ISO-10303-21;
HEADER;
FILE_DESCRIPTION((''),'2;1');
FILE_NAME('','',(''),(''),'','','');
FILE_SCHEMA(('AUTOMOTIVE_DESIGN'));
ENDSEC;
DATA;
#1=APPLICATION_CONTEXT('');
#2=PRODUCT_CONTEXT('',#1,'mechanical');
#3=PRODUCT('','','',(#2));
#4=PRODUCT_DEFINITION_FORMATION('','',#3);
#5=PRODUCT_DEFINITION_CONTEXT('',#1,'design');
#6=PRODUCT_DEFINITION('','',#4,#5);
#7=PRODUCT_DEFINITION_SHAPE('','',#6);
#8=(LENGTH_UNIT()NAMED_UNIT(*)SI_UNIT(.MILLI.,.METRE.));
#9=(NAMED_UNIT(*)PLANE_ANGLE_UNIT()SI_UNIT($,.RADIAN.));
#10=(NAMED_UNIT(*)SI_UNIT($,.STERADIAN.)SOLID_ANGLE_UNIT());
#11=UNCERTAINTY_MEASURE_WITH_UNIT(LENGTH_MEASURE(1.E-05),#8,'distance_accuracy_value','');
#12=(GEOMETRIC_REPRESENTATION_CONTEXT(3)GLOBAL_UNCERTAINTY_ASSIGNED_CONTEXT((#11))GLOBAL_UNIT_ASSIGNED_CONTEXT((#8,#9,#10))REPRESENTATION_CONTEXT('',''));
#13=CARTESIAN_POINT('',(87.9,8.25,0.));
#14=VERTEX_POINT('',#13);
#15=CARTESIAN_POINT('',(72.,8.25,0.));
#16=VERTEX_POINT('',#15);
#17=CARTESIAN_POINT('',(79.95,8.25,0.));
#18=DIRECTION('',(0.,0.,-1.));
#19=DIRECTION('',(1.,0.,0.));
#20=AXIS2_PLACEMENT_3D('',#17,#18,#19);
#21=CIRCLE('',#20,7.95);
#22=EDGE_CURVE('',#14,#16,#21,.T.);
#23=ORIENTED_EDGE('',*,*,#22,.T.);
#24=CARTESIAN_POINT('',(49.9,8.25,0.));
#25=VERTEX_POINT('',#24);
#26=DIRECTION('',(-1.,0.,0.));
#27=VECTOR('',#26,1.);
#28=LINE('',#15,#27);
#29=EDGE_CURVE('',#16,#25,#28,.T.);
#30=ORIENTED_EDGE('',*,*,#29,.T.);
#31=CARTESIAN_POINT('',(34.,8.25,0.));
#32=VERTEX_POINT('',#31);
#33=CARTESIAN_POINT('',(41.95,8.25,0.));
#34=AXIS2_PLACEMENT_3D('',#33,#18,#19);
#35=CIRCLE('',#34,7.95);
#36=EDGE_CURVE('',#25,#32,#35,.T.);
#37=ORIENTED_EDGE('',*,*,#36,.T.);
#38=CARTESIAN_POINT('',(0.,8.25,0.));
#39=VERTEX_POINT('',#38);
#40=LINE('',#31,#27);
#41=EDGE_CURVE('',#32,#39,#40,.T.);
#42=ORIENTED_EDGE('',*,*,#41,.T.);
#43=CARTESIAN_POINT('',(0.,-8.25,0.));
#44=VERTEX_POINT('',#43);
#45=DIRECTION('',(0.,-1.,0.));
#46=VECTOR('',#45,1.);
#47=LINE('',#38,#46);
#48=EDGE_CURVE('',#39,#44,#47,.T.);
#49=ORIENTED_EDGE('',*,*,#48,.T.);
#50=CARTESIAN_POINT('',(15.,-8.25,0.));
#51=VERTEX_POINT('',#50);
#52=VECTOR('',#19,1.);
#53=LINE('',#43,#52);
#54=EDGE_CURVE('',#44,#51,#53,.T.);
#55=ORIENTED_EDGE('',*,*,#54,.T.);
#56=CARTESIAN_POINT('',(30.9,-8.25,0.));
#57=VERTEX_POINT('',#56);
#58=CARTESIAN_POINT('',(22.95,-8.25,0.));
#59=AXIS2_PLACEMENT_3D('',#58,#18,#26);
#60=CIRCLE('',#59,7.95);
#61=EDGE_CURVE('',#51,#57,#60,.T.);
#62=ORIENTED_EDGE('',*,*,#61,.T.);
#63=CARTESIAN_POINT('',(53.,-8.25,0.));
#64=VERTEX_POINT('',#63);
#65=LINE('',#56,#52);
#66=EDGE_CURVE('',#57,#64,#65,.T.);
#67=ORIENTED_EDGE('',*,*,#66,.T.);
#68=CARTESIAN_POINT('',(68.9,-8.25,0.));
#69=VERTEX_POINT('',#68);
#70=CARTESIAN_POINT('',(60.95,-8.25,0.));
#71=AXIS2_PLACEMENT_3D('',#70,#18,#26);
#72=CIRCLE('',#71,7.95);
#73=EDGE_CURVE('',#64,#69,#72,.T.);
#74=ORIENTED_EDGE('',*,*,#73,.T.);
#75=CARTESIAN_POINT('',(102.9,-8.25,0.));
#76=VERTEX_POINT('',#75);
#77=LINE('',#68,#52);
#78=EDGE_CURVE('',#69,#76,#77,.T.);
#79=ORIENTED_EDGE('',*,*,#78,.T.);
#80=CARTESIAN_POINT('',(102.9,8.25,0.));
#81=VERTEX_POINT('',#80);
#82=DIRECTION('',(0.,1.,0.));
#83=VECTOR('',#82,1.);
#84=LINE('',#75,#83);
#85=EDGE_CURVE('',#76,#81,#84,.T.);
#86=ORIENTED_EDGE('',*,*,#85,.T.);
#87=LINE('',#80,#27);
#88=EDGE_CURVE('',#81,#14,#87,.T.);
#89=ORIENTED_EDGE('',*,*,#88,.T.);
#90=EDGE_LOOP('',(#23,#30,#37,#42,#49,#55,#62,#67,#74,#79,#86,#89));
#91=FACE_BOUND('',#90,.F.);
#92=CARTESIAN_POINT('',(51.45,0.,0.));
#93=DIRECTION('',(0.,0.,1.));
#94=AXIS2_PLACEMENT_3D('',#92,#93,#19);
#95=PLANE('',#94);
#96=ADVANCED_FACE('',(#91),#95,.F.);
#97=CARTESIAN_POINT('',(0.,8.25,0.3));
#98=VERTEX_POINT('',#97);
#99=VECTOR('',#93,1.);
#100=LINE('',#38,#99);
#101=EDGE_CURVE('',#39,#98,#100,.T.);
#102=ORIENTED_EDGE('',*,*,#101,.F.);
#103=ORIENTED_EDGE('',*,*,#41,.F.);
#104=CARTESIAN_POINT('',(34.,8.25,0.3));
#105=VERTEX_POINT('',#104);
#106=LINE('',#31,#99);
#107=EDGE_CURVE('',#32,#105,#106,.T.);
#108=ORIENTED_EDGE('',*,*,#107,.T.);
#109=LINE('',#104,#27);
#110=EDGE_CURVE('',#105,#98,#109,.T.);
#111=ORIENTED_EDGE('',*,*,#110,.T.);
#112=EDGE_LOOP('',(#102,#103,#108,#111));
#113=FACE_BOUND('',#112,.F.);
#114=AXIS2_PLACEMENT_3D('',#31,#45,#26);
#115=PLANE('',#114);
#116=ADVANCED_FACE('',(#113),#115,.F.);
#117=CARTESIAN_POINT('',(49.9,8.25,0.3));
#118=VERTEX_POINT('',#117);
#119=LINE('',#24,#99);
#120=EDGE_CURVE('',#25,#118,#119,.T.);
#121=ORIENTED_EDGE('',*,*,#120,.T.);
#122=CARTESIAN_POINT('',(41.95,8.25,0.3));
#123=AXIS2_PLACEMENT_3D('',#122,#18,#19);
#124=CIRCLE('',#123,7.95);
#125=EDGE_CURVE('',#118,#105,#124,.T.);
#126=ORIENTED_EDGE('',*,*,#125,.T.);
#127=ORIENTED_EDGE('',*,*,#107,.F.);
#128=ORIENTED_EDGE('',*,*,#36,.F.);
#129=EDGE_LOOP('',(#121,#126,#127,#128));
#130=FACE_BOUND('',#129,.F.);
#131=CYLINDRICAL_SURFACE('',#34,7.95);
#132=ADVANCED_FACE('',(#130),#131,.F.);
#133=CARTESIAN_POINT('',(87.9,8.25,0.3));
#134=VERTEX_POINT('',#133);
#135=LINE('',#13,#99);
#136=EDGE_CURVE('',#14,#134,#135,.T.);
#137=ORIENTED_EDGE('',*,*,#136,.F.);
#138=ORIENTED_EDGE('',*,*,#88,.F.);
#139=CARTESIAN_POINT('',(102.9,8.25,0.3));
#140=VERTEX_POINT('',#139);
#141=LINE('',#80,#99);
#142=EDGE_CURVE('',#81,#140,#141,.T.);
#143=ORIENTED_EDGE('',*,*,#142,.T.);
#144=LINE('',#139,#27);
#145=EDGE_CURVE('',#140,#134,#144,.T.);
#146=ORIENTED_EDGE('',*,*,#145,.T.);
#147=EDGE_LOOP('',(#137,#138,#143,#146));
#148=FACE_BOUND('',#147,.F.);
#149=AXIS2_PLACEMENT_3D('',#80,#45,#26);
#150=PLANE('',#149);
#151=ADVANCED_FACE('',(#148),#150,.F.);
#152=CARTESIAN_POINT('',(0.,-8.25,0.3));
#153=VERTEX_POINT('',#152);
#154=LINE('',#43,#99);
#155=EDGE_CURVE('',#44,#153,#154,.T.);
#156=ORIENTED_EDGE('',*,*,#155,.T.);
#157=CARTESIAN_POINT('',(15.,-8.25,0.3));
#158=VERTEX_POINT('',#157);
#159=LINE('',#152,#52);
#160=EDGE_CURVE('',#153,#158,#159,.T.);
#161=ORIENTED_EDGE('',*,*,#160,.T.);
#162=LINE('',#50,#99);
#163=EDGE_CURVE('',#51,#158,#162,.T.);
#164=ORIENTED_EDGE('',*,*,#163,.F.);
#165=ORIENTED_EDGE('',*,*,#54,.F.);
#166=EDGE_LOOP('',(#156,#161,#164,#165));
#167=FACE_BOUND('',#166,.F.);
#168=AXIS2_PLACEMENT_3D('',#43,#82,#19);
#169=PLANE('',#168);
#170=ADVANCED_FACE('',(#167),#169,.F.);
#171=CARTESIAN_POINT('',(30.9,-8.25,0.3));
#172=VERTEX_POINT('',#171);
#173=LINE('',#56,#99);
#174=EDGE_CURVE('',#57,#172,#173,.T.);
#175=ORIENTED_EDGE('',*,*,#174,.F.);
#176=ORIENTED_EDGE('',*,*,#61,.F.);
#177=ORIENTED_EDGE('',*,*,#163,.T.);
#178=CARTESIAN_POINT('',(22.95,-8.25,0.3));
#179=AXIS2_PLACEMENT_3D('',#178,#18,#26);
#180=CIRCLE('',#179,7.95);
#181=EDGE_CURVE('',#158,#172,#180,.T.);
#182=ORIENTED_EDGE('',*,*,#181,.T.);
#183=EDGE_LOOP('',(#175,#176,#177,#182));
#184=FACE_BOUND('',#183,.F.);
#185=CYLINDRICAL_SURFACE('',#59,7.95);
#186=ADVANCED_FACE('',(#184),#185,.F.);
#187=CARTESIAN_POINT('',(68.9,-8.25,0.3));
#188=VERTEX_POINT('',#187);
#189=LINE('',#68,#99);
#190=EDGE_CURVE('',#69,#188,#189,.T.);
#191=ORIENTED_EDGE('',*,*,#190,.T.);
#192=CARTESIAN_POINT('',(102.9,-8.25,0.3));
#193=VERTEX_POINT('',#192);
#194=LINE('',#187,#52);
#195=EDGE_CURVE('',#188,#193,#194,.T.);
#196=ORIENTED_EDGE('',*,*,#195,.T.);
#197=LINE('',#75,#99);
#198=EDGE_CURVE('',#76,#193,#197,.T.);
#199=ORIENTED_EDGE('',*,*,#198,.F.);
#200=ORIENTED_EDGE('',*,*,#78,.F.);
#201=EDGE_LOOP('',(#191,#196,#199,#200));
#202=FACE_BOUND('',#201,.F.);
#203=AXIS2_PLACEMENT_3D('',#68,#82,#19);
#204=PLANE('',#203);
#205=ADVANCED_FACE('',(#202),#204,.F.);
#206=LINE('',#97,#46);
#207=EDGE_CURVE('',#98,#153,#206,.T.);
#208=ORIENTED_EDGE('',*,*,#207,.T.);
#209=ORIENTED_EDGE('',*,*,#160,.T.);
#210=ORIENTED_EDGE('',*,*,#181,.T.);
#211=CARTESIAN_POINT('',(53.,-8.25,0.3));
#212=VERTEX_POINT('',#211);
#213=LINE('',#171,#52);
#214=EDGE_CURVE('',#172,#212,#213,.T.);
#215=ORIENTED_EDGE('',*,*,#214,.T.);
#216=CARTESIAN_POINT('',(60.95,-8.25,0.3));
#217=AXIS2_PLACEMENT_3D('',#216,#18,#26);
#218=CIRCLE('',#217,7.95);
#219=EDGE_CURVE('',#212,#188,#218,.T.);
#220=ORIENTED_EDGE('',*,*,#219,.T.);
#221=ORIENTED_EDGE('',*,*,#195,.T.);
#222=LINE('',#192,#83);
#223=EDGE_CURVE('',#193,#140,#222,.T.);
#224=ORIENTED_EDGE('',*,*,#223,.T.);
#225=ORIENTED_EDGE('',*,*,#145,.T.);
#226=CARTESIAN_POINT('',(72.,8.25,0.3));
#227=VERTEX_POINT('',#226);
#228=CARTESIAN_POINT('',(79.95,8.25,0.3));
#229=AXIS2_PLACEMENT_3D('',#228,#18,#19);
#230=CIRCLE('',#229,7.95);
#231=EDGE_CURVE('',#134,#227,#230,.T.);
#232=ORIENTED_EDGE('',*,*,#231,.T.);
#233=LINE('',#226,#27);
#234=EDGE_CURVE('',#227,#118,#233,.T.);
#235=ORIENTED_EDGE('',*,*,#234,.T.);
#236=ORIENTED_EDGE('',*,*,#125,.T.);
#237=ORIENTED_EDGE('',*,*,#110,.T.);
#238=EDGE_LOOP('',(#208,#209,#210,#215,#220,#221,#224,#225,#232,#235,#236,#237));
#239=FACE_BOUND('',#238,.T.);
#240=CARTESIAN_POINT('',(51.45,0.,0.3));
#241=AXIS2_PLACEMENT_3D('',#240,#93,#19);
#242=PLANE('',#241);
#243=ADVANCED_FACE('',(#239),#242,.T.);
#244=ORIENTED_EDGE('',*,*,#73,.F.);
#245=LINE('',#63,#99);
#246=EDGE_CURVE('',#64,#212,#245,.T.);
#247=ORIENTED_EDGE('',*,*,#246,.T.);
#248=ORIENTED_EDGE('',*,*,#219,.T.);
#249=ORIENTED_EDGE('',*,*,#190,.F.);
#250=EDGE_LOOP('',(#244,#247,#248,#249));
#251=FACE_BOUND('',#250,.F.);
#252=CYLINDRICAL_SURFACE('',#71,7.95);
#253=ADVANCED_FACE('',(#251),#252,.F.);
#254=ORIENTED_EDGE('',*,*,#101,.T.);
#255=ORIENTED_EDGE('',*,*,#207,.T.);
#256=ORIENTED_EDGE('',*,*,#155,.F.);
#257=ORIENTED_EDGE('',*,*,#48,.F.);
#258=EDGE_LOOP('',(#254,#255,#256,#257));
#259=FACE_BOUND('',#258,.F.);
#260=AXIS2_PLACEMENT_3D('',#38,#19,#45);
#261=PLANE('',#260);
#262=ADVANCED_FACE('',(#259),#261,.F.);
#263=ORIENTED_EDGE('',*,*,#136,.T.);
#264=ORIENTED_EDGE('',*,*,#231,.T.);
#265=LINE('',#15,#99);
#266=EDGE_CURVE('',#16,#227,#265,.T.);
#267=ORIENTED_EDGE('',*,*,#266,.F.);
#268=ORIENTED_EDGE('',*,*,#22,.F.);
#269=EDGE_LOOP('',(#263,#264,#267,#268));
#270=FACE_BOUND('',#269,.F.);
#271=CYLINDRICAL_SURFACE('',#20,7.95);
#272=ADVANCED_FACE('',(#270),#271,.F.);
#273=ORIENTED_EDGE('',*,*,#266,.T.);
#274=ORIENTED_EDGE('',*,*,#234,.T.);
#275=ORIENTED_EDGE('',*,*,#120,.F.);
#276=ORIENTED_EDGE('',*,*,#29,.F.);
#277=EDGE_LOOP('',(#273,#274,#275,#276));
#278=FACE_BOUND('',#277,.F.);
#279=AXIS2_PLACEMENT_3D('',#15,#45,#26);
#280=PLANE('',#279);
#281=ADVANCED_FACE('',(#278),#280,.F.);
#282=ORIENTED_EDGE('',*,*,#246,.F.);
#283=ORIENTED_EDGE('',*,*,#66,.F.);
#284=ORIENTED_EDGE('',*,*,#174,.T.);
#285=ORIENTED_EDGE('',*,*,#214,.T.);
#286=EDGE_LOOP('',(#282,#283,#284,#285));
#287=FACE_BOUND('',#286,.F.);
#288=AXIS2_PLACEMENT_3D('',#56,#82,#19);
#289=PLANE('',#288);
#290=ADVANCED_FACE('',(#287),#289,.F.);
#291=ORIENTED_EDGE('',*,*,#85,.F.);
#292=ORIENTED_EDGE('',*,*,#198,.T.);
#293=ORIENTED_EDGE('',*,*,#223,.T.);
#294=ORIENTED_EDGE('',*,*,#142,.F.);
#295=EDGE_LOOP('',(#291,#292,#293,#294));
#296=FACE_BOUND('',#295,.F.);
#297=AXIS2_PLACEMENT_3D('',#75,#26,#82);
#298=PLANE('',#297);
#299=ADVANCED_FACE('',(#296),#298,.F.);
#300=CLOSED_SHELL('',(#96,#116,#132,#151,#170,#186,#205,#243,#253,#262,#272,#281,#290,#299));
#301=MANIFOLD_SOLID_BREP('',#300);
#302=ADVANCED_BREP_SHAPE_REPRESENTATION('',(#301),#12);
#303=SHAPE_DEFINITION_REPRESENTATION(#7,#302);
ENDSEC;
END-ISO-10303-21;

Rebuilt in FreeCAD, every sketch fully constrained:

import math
import FreeCAD as App
import Part
import Sketcher

doc = App.newDocument("Part")
body = doc.addObject("PartDesign::Body", "Body")

# Sketch on XY plane
sketch1 = doc.addObject("Sketcher::SketchObject", "Sketch")
body.addObject(sketch1)
sketch1.AttachmentSupport = (doc.XY_Plane, [""])
sketch1.MapMode = "FlatFace"
sketch1.addGeometry(Part.ArcOfCircle(Part.Circle(App.Vector(61, -8, 0), App.Vector(0, 0, 1), 8), math.radians(0), math.radians(180)), False)
sketch1.addGeometry(Part.LineSegment(App.Vector(69, -8, 0), App.Vector(103, -8, 0)), False)
sketch1.addGeometry(Part.LineSegment(App.Vector(103, -8, 0), App.Vector(103, 8, 0)), False)
sketch1.addGeometry(Part.LineSegment(App.Vector(103, 8, 0), App.Vector(88, 8, 0)), False)
sketch1.addGeometry(Part.ArcOfCircle(Part.Circle(App.Vector(80, 8, 0), App.Vector(0, 0, 1), 8), math.radians(180), math.radians(360)), False)
sketch1.addGeometry(Part.LineSegment(App.Vector(72, 8, 0), App.Vector(50, 8, 0)), False)
sketch1.addGeometry(Part.ArcOfCircle(Part.Circle(App.Vector(42, 8, 0), App.Vector(0, 0, 1), 8), math.radians(180), math.radians(360)), False)
sketch1.addGeometry(Part.LineSegment(App.Vector(34, 8, 0), App.Vector(0, 8, 0)), False)
sketch1.addGeometry(Part.LineSegment(App.Vector(0, 8, 0), App.Vector(0, -8, 0)), False)
sketch1.addGeometry(Part.LineSegment(App.Vector(0, -8, 0), App.Vector(15, -8, 0)), False)
sketch1.addGeometry(Part.ArcOfCircle(Part.Circle(App.Vector(23, -8, 0), App.Vector(0, 0, 1), 8), math.radians(0), math.radians(180)), False)
sketch1.addGeometry(Part.LineSegment(App.Vector(31, -8, 0), App.Vector(53, -8, 0)), False)
sketch1.addConstraint(Sketcher.Constraint("Coincident", 0, 1, 1, 1))
sketch1.addConstraint(Sketcher.Constraint("Coincident", 1, 2, 2, 1))
sketch1.addConstraint(Sketcher.Constraint("Coincident", 2, 2, 3, 1))
sketch1.addConstraint(Sketcher.Constraint("Coincident", 3, 2, 4, 2))
sketch1.addConstraint(Sketcher.Constraint("Coincident", 4, 1, 5, 1))
sketch1.addConstraint(Sketcher.Constraint("Coincident", 5, 2, 6, 2))
sketch1.addConstraint(Sketcher.Constraint("Coincident", 6, 1, 7, 1))
sketch1.addConstraint(Sketcher.Constraint("Coincident", 7, 2, 8, 1))
sketch1.addConstraint(Sketcher.Constraint("Coincident", 8, 2, 9, 1))
sketch1.addConstraint(Sketcher.Constraint("Coincident", 9, 2, 10, 2))
sketch1.addConstraint(Sketcher.Constraint("Coincident", 10, 1, 11, 1))
sketch1.addConstraint(Sketcher.Constraint("Coincident", 11, 2, 0, 2))
sketch1.addConstraint(Sketcher.Constraint("Horizontal", 1))
sketch1.addConstraint(Sketcher.Constraint("Vertical", 2))
sketch1.addConstraint(Sketcher.Constraint("Horizontal", 3))
sketch1.addConstraint(Sketcher.Constraint("Horizontal", 5))
sketch1.addConstraint(Sketcher.Constraint("Horizontal", 7))
sketch1.addConstraint(Sketcher.Constraint("Vertical", 8))
sketch1.addConstraint(Sketcher.Constraint("Horizontal", 9))
sketch1.addConstraint(Sketcher.Constraint("Horizontal", 11))
sketch1.addConstraint(Sketcher.Constraint("Equal", 0, 4))
sketch1.addConstraint(Sketcher.Constraint("Equal", 4, 6))
sketch1.addConstraint(Sketcher.Constraint("Equal", 6, 10))
sketch1.addConstraint(Sketcher.Constraint("Symmetric", 7, 2, 8, 2, -1, 1))
sketch1.addConstraint(Sketcher.Constraint("Horizontal", 4, 3, 6, 3))
sketch1.addConstraint(Sketcher.Constraint("Horizontal", 0, 3, 10, 3))
sketch1.addConstraint(Sketcher.Constraint("Horizontal", 10, 3, 0, 1))
sketch1.addConstraint(Sketcher.Constraint("Horizontal", 6, 3, 2, 2))
sketch1.addConstraint(Sketcher.Constraint("Horizontal", 3, 2, 4, 1))
sketch1.addConstraint(Sketcher.Constraint("Horizontal", 5, 2, 6, 1))
sketch1.addConstraint(Sketcher.Constraint("Horizontal", 1, 2, 8, 2))
sketch1.addConstraint(Sketcher.Constraint("Horizontal", 9, 2, 10, 1))
sketch1.addConstraint(Sketcher.Constraint("Equal", 1, 7))
sketch1.addConstraint(Sketcher.Constraint("Equal", 3, 9))
sketch1.addConstraint(Sketcher.Constraint("DistanceX", 1, 1, 1, 2, 34.0))
sketch1.addConstraint(Sketcher.Constraint("DistanceX", 3, 2, 3, 1, 15.0))
sketch1.addConstraint(Sketcher.Constraint("Radius", 0, 7.95))
sketch1.addConstraint(Sketcher.Constraint("DistanceX", 5, 2, 5, 1, 22.1))
sketch1.addConstraint(Sketcher.Constraint("DistanceY", 2, 1, 2, 2, 16.5))
pad1 = doc.addObject("PartDesign::Pad", "Pad")
body.addObject(pad1)
pad1.Profile = sketch1
pad1.Length = 0.3

doc.recompute()
